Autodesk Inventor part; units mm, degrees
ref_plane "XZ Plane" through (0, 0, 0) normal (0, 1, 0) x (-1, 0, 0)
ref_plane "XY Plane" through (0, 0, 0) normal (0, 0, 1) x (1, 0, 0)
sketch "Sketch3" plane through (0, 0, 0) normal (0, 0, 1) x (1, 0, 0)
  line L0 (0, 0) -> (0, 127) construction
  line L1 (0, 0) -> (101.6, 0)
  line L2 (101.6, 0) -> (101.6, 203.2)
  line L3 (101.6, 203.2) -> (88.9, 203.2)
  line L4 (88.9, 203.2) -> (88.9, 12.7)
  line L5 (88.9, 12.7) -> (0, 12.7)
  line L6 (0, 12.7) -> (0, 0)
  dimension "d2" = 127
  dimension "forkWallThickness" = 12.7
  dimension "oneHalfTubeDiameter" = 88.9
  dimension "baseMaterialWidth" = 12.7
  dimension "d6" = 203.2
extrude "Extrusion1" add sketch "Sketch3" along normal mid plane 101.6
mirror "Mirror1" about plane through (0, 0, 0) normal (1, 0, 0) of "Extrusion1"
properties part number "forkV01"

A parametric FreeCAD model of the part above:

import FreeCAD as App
import Part
import Sketcher
from FreeCAD import Vector
Q = App.Units.Quantity


def add_polygon(sketch, points):
    """Adds a closed chain of lines whose ends are joined by coincident constraints."""
    first, n = sketch.GeometryCount, len(points)
    for a, b in zip(points, points[1:] + points[:1]):
        sketch.addGeometry(Part.LineSegment(App.Vector(*a, 0), App.Vector(*b, 0)), False)
    for i in range(n):
        sketch.addConstraint(Sketcher.Constraint("Coincident", first + i, 2, first + (i + 1) % n, 1))

doc = App.newDocument("Part")
body = doc.addObject("PartDesign::Body", "Body")

sketch1 = body.newObject("Sketcher::SketchObject", "Sketch")
sketch1.AttachmentSupport = (doc.getObject("XY_Plane"), [""])
sketch1.MapMode = "FlatFace"
add_polygon(sketch1, [(0, 13), (0, 0), (102, 0), (102, 203), (89, 203), (89, 13)])
sketch1.addConstraint(Sketcher.Constraint("Vertical", 0))
sketch1.addConstraint(Sketcher.Constraint("Horizontal", 1))
sketch1.addConstraint(Sketcher.Constraint("Vertical", 2))
sketch1.addConstraint(Sketcher.Constraint("Horizontal", 3))
sketch1.addConstraint(Sketcher.Constraint("Vertical", 4))
sketch1.addConstraint(Sketcher.Constraint("Horizontal", 5))
sketch1.addConstraint(Sketcher.Constraint("Coincident", 0, 2, -1, 1))
sketch1.addConstraint(Sketcher.Constraint("Equal", 3, 0))
sketch1.addConstraint(Sketcher.Constraint("DistanceY", 2, 1, 2, 2, Q("8 in")))
sketch1.addConstraint(Sketcher.Constraint("DistanceX", 3, 2, 3, 1, Q("0.5 in")))
sketch1.addConstraint(Sketcher.Constraint("DistanceX", 5, 2, 5, 1, Q("3.5 in")))
pad1 = body.newObject("PartDesign::Pad", "Pad")
pad1.Profile = sketch1
pad1.Length = Q("4 in")
pad1.Midplane = True
doc.recompute()

mirrored = body.newObject("PartDesign::Mirrored", "Mirrored")
mirrored.Originals = [pad1]
mirrored.MirrorPlane = (doc.getObject("YZ_Plane"), [""])
body.Tip = mirrored

doc.recompute()
